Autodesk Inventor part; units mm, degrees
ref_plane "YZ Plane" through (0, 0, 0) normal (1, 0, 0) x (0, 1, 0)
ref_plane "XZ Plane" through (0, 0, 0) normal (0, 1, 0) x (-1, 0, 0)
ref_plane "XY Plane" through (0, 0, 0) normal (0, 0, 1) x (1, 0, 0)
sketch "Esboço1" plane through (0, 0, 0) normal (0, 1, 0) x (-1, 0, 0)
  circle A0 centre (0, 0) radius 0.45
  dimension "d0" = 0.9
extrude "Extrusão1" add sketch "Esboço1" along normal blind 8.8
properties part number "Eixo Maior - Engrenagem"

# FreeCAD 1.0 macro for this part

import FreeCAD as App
import Part
import Sketcher

doc = App.newDocument("Part")
params = doc.addObject("Spreadsheet::Sheet", "Params")
for row, (alias, value) in enumerate([
    ("sketch1_diameter", "0.9 mm"),
    ("pad1_length", "8.8 mm"),
], start=1):
    params.set(f"A{row}", alias)
    params.set(f"B{row}", "=" + value)
    params.setAlias(f"B{row}", alias)

body = doc.addObject("PartDesign::Body", "Body")

# Sketch on XZ plane
sketch1 = body.newObject("Sketcher::SketchObject", "Sketch")
sketch1.AttachmentSupport = (doc.getObject("XZ_Plane"), [""])
sketch1.MapMode = "FlatFace"
sketch1.addGeometry(Part.Circle(App.Vector(0, 0, 0), App.Vector(0, 0, 1), 0.45), False)
sketch1.addConstraint(Sketcher.Constraint("Coincident", 0, 3, -1, 1))
sketch1.addConstraint(Sketcher.Constraint("Diameter", 0, 0.9))
sketch1.setExpression("Constraints[1]", "Params.sketch1_diameter")
pad1 = body.newObject("PartDesign::Pad", "Pad")
pad1.Profile = sketch1
pad1.setExpression("Length", "Params.pad1_length")
pad1.Reversed = True

doc.recompute()
